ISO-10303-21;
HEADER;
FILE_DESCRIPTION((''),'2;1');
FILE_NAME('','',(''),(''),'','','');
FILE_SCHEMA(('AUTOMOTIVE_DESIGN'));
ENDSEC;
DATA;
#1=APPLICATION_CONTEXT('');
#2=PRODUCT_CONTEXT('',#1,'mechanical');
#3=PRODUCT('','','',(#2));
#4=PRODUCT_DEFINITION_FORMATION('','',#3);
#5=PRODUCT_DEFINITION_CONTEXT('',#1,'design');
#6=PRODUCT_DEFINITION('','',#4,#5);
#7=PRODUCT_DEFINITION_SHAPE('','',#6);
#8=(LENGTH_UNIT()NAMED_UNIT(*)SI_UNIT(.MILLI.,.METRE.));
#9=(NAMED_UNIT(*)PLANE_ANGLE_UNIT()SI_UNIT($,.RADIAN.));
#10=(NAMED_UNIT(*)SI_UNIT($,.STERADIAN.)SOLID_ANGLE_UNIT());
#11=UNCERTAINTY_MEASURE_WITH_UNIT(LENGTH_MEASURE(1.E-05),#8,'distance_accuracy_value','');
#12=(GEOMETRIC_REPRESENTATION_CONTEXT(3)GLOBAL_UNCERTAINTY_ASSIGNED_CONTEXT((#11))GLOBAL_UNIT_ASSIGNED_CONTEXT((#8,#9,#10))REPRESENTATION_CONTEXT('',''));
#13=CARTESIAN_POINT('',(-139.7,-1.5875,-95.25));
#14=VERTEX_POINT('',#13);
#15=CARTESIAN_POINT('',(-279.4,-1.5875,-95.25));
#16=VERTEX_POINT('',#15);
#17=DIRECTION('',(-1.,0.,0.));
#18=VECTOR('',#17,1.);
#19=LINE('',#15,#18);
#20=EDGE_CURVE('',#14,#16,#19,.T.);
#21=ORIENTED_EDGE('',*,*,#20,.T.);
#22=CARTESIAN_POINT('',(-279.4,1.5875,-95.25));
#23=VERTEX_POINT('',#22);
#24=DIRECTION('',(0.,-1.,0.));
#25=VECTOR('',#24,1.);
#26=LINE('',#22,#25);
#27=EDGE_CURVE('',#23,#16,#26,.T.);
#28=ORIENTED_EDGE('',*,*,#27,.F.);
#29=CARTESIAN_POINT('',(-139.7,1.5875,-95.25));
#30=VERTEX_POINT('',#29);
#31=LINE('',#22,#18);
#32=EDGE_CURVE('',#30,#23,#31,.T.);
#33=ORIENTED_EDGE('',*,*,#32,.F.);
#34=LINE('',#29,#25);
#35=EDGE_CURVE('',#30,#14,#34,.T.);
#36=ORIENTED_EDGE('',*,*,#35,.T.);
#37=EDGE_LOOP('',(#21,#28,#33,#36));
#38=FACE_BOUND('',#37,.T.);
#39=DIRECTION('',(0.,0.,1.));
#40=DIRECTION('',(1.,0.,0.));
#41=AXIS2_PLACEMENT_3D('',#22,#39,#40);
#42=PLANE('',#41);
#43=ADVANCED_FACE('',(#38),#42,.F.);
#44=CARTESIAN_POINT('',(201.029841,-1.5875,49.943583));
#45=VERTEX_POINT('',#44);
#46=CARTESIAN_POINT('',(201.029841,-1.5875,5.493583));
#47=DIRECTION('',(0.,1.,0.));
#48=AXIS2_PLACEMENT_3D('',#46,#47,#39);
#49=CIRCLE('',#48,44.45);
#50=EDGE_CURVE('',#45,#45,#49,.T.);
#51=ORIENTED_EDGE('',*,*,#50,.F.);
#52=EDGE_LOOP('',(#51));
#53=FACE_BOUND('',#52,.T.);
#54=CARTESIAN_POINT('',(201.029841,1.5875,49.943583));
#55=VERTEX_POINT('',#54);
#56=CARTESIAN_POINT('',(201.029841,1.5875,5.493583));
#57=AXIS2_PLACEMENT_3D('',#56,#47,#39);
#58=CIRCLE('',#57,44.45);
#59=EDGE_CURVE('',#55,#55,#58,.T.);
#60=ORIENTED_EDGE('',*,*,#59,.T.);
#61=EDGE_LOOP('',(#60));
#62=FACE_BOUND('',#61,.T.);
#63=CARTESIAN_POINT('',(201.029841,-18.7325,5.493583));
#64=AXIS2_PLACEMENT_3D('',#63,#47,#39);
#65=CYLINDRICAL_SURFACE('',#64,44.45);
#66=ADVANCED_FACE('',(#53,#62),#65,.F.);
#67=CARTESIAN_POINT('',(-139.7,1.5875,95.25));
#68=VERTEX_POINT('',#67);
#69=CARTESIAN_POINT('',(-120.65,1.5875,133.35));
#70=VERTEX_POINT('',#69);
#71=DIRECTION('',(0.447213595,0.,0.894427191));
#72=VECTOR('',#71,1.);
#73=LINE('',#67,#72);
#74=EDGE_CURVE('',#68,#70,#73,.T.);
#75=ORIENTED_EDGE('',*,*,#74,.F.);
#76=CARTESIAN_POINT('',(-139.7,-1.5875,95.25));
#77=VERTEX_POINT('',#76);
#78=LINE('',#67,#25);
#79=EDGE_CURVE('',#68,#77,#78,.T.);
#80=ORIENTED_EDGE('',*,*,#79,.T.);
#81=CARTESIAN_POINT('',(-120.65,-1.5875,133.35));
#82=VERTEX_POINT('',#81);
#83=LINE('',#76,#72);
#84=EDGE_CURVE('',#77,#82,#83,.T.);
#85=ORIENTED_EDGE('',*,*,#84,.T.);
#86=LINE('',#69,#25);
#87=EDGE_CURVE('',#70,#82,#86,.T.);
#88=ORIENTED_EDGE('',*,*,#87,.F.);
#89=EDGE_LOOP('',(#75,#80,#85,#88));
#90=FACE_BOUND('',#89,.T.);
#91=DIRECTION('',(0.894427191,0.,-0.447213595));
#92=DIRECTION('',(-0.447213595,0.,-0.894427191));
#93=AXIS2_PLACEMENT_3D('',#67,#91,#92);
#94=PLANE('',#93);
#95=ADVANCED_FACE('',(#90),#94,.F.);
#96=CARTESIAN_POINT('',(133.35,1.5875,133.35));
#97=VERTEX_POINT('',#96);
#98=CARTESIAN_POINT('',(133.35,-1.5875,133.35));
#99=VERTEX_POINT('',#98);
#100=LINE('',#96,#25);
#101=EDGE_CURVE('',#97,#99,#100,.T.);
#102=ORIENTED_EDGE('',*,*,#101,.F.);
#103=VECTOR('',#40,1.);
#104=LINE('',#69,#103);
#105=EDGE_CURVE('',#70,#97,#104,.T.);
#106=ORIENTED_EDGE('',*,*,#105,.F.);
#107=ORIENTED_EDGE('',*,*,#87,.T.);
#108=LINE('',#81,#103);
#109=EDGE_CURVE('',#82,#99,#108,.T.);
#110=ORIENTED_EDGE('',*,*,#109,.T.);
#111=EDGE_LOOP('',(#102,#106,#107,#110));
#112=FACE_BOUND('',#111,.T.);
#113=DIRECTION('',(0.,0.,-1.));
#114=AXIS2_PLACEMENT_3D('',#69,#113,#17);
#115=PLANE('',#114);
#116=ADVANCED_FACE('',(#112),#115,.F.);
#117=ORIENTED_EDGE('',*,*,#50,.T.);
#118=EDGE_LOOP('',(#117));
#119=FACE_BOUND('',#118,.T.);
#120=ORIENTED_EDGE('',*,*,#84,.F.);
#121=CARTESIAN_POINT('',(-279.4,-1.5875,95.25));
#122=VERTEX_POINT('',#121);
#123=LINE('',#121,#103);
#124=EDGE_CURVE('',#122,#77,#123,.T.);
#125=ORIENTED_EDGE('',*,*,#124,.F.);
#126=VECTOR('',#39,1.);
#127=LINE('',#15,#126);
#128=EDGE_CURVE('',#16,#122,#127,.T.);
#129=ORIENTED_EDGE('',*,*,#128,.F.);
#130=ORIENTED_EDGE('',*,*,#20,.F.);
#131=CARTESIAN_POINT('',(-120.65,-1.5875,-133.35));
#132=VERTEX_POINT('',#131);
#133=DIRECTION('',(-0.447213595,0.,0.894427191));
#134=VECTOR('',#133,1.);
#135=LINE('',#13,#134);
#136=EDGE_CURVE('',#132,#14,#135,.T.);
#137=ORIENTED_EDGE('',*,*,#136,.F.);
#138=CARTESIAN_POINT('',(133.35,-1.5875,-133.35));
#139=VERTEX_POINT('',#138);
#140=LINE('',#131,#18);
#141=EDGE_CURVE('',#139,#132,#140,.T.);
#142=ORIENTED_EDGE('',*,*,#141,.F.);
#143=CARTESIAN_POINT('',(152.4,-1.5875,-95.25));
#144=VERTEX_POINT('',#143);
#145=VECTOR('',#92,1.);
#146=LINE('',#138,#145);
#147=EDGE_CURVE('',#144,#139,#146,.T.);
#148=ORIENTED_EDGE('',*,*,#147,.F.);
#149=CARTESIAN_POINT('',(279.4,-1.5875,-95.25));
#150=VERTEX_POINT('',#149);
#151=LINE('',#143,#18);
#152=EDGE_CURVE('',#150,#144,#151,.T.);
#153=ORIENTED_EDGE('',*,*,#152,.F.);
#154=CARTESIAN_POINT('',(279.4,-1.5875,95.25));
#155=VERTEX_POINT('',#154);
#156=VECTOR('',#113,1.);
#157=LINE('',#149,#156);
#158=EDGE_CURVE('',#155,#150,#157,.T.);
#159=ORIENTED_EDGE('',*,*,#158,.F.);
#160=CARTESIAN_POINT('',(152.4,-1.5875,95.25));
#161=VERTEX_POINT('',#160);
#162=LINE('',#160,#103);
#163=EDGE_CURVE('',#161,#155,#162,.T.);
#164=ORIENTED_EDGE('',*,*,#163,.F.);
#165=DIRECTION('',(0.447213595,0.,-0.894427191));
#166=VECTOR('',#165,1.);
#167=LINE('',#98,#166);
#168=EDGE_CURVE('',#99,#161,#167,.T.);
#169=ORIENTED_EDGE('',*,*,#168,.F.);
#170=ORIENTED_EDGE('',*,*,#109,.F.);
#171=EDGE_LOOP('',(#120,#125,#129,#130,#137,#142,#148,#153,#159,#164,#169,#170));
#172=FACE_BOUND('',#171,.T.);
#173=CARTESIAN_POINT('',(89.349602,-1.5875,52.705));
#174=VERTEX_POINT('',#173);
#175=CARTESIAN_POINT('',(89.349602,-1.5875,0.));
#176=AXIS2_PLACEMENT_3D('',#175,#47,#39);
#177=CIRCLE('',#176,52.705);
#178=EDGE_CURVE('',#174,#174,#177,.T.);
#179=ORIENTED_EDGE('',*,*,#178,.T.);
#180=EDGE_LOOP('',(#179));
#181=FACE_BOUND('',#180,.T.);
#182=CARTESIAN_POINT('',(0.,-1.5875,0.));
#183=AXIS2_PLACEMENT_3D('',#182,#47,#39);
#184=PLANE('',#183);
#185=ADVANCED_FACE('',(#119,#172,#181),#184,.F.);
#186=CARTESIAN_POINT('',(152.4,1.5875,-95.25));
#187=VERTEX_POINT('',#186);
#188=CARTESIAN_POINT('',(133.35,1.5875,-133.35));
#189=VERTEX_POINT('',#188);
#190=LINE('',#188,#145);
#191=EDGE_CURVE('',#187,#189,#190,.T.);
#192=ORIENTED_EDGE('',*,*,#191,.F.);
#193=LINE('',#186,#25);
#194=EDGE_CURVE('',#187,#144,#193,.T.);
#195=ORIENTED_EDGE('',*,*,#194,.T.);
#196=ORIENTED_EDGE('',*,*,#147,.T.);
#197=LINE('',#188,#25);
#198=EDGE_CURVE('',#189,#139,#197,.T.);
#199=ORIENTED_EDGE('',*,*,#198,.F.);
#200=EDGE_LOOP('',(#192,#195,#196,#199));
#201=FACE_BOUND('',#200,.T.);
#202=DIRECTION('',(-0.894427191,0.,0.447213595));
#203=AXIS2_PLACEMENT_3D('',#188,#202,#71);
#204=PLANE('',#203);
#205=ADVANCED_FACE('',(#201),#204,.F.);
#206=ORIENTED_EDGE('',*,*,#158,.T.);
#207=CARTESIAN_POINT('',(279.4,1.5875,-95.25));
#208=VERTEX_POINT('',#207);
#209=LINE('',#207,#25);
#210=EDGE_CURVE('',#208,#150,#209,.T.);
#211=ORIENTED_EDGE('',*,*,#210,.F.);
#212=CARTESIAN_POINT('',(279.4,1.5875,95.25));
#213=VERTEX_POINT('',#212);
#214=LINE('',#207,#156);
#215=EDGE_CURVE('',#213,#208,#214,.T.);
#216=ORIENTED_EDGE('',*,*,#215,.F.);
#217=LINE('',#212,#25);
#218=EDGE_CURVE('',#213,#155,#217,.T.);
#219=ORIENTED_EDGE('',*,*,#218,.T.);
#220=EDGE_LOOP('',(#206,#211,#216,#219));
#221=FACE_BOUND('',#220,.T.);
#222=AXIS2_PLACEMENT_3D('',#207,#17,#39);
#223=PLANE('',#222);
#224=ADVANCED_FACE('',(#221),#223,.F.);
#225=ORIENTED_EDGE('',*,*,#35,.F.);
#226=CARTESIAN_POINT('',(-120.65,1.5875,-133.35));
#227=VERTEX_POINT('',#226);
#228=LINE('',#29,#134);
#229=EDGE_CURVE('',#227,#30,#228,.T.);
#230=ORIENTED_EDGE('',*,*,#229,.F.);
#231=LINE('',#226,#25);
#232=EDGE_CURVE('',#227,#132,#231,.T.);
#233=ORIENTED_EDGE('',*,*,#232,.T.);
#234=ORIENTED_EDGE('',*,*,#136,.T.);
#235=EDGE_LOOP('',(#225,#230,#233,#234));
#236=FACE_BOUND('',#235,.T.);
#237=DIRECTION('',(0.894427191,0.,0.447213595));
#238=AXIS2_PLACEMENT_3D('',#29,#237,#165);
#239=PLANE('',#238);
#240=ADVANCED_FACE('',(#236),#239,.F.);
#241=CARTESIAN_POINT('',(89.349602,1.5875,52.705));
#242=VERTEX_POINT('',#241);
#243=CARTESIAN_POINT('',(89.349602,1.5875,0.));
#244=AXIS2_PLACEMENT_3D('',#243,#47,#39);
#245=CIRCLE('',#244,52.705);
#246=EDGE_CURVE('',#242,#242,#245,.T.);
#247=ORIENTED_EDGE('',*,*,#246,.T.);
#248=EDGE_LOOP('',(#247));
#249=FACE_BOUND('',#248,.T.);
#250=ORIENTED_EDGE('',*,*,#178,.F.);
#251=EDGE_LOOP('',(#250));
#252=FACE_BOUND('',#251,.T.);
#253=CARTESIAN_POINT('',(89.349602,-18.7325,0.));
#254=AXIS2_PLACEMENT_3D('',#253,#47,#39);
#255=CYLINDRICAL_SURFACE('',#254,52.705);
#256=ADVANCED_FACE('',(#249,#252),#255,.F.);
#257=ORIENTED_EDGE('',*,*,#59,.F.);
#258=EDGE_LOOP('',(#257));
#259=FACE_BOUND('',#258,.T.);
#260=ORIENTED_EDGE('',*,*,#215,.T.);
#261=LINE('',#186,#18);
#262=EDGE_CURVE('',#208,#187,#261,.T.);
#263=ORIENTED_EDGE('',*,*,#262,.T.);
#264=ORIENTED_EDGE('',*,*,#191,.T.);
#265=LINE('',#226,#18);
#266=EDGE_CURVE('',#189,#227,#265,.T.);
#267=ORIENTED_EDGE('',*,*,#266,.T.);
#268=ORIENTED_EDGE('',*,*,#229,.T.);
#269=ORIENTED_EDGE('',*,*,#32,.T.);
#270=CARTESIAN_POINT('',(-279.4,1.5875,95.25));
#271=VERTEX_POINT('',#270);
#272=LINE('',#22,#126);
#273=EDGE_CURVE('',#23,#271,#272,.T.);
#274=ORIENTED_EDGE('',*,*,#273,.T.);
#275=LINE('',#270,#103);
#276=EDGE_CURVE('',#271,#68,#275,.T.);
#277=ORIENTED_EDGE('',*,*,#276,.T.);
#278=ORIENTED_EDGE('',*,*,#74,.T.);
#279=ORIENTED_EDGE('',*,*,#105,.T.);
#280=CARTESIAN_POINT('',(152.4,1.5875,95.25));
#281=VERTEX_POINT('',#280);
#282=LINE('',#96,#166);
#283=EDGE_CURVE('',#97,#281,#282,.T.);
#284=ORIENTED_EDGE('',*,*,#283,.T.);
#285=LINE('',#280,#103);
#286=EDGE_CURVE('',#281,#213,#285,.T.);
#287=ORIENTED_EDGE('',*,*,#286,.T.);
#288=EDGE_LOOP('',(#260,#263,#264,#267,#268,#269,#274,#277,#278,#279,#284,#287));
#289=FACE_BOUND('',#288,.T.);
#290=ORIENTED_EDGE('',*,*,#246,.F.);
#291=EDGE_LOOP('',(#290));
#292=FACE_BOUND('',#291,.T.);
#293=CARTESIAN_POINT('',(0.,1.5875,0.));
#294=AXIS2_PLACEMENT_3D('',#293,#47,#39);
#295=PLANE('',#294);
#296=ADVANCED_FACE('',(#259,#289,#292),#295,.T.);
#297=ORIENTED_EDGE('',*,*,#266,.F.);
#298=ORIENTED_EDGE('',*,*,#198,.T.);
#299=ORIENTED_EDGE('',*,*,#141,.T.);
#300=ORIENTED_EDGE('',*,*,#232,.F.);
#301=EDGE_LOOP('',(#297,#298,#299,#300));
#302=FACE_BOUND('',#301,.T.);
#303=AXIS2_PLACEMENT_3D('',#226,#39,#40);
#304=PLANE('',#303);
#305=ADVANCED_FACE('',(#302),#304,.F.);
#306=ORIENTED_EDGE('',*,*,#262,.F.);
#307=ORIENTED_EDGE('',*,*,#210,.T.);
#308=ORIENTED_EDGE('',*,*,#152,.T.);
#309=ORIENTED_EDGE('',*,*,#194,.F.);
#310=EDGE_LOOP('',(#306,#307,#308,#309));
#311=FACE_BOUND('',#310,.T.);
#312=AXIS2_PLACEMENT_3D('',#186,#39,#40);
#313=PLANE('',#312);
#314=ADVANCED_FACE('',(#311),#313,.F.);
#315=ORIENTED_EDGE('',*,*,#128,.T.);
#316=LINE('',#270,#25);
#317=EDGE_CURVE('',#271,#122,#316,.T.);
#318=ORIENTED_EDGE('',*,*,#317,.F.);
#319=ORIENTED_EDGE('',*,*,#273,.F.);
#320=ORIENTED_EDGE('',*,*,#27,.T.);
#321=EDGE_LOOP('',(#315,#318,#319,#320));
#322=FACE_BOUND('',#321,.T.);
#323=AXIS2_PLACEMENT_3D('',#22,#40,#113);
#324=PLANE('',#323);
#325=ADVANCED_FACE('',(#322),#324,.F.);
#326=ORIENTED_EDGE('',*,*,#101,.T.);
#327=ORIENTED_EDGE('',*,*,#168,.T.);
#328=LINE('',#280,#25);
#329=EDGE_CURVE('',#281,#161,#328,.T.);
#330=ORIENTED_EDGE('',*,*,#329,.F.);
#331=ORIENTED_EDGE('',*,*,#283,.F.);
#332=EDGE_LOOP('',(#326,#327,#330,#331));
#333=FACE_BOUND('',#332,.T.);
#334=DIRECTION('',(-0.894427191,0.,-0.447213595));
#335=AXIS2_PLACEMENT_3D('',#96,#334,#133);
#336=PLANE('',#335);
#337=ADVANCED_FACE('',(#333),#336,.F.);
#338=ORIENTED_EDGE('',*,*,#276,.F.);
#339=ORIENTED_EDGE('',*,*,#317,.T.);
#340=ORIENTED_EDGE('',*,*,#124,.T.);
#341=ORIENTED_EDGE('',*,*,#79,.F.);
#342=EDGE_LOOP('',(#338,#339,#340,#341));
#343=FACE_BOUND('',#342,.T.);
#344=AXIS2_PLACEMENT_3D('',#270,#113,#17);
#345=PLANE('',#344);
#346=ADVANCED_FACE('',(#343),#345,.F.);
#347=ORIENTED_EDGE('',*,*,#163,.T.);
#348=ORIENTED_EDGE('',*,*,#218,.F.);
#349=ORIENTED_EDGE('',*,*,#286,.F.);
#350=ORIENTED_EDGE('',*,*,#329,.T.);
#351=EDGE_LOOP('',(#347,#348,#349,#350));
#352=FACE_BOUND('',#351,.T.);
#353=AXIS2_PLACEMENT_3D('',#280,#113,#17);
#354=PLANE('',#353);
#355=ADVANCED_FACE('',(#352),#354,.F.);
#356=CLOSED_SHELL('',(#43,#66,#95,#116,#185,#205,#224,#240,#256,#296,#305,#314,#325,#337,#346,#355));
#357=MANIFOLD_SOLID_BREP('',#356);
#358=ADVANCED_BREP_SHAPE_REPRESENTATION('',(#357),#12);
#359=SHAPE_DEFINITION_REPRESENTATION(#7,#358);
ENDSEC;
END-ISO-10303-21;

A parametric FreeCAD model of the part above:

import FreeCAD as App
import Part
import Sketcher
Q = App.Units.Quantity

doc = App.newDocument("Part")
params = doc.addObject("Spreadsheet::Sheet", "Params")
for row, (alias, value) in enumerate([
    ("sketch1_width", "10 in"),
    ("sketch1_width2", "5 in"),
    ("sketch1_width3", "5.5 in"),
    ("sketch1_height", "7.5 in"),
    ("pad1_length", "0.125 in"),
    ("sketch2_diameter", "3.5 in"),
    ("sketch2_diameter2", "4.15 in"),
    ("pocket1_length", "0.8 in"),
], start=1):
    params.set(f"A{row}", alias)
    params.set(f"B{row}", "=" + value)
    params.setAlias(f"B{row}", alias)

body = doc.addObject("PartDesign::Body", "Body")

# Sketch on XZ plane
sketch1 = body.newObject("Sketcher::SketchObject", "Sketch")
sketch1.AttachmentSupport = (doc.getObject("XZ_Plane"), [""])
sketch1.MapMode = "FlatFace"
sketch1.addGeometry([
    Part.LineSegment(App.Vector(-139.7, -95.25, 0), App.Vector(-279.4, -95.25, 0)),  # 0
    Part.LineSegment(App.Vector(-279.4, -95.25, 0), App.Vector(-279.4, 95.25, 0)),  # 1
    Part.LineSegment(App.Vector(-279.4, 95.25, 0), App.Vector(-139.7, 95.25, 0)),  # 2
    Part.LineSegment(App.Vector(-139.7, 95.25, 0), App.Vector(-120.65, 133.35, 0)),  # 3
    Part.LineSegment(App.Vector(-120.65, 133.35, 0), App.Vector(133.35, 133.35, 0)),  # 4
    Part.LineSegment(App.Vector(133.35, 133.35, 0), App.Vector(152.4, 95.25, 0)),  # 5
    Part.LineSegment(App.Vector(152.4, 95.25, 0), App.Vector(279.4, 95.25, 0)),  # 6
    Part.LineSegment(App.Vector(279.4, 95.25, 0), App.Vector(279.4, -95.25, 0)),  # 7
    Part.LineSegment(App.Vector(279.4, -95.25, 0), App.Vector(152.4, -95.25, 0)),  # 8
    Part.LineSegment(App.Vector(152.4, -95.25, 0), App.Vector(133.35, -133.35, 0)),  # 9
    Part.LineSegment(App.Vector(133.35, -133.35, 0), App.Vector(-120.65, -133.35, 0)),  # 10
    Part.LineSegment(App.Vector(-120.65, -133.35, 0), App.Vector(-139.7, -95.25, 0)),  # 11
], False)
sketch1.addConstraint([
    Sketcher.Constraint("Coincident", 0, 2, 1, 1),
    Sketcher.Constraint("Coincident", 1, 2, 2, 1),
    Sketcher.Constraint("Coincident", 2, 2, 3, 1),
    Sketcher.Constraint("Coincident", 3, 2, 4, 1),
    Sketcher.Constraint("Coincident", 4, 2, 5, 1),
    Sketcher.Constraint("Coincident", 5, 2, 6, 1),
    Sketcher.Constraint("Coincident", 6, 2, 7, 1),
    Sketcher.Constraint("Coincident", 7, 2, 8, 1),
    Sketcher.Constraint("Coincident", 8, 2, 9, 1),
    Sketcher.Constraint("Coincident", 9, 2, 10, 1),
    Sketcher.Constraint("Coincident", 10, 2, 11, 1),
    Sketcher.Constraint("Coincident", 11, 2, 0, 1),
    Sketcher.Constraint("Horizontal", 0),
    Sketcher.Constraint("Vertical", 1),
    Sketcher.Constraint("Horizontal", 2),
    Sketcher.Constraint("Horizontal", 4),
    Sketcher.Constraint("Horizontal", 6),
    Sketcher.Constraint("Vertical", 7),
    Sketcher.Constraint("Horizontal", 8),
    Sketcher.Constraint("Horizontal", 10),
    Sketcher.Constraint("Symmetric", 0, 2, 6, 2, -1, 1),
    Sketcher.Constraint("Symmetric", 5, 2, 8, 2, -1),
    Sketcher.Constraint("Symmetric", 4, 2, 9, 2, -1),
    Sketcher.Constraint("Symmetric", 2, 2, 11, 2, -1),
    Sketcher.Constraint("Parallel", 3, 9),
    Sketcher.Constraint("Parallel", 5, 11),
    Sketcher.Constraint("DistanceX", 4, 1, 4, 2, Q("10 in")),
    Sketcher.Constraint("DistanceX", 6, 1, 6, 2, Q("5 in")),
    Sketcher.Constraint("DistanceX", 0, 2, 0, 1, Q("5.5 in")),
    Sketcher.Constraint("DistanceY", 1, 1, 1, 2, Q("7.5 in")),
    Sketcher.Constraint("DistanceX", 0, 2, -1, 1, Q("11 in")),
    Sketcher.Constraint("DistanceY", 0, 2, 3, 2, Q("9 in")),
])
sketch1.setExpression("Constraints[26]", "Params.sketch1_width")
sketch1.setExpression("Constraints[27]", "Params.sketch1_width2")
sketch1.setExpression("Constraints[28]", "Params.sketch1_width3")
sketch1.setExpression("Constraints[29]", "Params.sketch1_height")
pad1 = body.newObject("PartDesign::Pad", "Pad")
pad1.Profile = sketch1
pad1.setExpression("Length", "Params.pad1_length")
pad1.Midplane = True

# Sketch on XZ plane
sketch2 = body.newObject("Sketcher::SketchObject", "Sketch001")
sketch2.AttachmentSupport = (doc.getObject("XZ_Plane"), [""])
sketch2.MapMode = "FlatFace"
sketch2.AttachmentOffset = App.Placement(App.Vector(0, 0, -0.0625 * 25.4), App.Rotation())
sketch2.addGeometry([
    Part.Circle(App.Vector(89.349602, 0, 0), App.Vector(0, 0, 1), 52.705),
    Part.Circle(App.Vector(201.029841, 5.493583, 0), App.Vector(0, 0, 1), 44.45),
], False)
sketch2.addConstraint([
    Sketcher.Constraint("PointOnObject", 0, 3, -1),
    Sketcher.Constraint("Diameter", 1, Q("3.5 in")),
    Sketcher.Constraint("Diameter", 0, Q("4.15 in")),
    Sketcher.Constraint("DistanceX", -1, 1, 0, 3, 89.349602),
    Sketcher.Constraint("DistanceX", -1, 1, 1, 3, 201.029841),
    Sketcher.Constraint("DistanceY", -1, 1, 1, 3, 5.493583),
])
sketch2.setExpression("Constraints[1]", "Params.sketch2_diameter")
sketch2.setExpression("Constraints[2]", "Params.sketch2_diameter2")
pocket1 = body.newObject("PartDesign::Pocket", "Pocket")
pocket1.Profile = sketch2
pocket1.setExpression("Length", "Params.pocket1_length")
pocket1.Reversed = True

doc.recompute()
